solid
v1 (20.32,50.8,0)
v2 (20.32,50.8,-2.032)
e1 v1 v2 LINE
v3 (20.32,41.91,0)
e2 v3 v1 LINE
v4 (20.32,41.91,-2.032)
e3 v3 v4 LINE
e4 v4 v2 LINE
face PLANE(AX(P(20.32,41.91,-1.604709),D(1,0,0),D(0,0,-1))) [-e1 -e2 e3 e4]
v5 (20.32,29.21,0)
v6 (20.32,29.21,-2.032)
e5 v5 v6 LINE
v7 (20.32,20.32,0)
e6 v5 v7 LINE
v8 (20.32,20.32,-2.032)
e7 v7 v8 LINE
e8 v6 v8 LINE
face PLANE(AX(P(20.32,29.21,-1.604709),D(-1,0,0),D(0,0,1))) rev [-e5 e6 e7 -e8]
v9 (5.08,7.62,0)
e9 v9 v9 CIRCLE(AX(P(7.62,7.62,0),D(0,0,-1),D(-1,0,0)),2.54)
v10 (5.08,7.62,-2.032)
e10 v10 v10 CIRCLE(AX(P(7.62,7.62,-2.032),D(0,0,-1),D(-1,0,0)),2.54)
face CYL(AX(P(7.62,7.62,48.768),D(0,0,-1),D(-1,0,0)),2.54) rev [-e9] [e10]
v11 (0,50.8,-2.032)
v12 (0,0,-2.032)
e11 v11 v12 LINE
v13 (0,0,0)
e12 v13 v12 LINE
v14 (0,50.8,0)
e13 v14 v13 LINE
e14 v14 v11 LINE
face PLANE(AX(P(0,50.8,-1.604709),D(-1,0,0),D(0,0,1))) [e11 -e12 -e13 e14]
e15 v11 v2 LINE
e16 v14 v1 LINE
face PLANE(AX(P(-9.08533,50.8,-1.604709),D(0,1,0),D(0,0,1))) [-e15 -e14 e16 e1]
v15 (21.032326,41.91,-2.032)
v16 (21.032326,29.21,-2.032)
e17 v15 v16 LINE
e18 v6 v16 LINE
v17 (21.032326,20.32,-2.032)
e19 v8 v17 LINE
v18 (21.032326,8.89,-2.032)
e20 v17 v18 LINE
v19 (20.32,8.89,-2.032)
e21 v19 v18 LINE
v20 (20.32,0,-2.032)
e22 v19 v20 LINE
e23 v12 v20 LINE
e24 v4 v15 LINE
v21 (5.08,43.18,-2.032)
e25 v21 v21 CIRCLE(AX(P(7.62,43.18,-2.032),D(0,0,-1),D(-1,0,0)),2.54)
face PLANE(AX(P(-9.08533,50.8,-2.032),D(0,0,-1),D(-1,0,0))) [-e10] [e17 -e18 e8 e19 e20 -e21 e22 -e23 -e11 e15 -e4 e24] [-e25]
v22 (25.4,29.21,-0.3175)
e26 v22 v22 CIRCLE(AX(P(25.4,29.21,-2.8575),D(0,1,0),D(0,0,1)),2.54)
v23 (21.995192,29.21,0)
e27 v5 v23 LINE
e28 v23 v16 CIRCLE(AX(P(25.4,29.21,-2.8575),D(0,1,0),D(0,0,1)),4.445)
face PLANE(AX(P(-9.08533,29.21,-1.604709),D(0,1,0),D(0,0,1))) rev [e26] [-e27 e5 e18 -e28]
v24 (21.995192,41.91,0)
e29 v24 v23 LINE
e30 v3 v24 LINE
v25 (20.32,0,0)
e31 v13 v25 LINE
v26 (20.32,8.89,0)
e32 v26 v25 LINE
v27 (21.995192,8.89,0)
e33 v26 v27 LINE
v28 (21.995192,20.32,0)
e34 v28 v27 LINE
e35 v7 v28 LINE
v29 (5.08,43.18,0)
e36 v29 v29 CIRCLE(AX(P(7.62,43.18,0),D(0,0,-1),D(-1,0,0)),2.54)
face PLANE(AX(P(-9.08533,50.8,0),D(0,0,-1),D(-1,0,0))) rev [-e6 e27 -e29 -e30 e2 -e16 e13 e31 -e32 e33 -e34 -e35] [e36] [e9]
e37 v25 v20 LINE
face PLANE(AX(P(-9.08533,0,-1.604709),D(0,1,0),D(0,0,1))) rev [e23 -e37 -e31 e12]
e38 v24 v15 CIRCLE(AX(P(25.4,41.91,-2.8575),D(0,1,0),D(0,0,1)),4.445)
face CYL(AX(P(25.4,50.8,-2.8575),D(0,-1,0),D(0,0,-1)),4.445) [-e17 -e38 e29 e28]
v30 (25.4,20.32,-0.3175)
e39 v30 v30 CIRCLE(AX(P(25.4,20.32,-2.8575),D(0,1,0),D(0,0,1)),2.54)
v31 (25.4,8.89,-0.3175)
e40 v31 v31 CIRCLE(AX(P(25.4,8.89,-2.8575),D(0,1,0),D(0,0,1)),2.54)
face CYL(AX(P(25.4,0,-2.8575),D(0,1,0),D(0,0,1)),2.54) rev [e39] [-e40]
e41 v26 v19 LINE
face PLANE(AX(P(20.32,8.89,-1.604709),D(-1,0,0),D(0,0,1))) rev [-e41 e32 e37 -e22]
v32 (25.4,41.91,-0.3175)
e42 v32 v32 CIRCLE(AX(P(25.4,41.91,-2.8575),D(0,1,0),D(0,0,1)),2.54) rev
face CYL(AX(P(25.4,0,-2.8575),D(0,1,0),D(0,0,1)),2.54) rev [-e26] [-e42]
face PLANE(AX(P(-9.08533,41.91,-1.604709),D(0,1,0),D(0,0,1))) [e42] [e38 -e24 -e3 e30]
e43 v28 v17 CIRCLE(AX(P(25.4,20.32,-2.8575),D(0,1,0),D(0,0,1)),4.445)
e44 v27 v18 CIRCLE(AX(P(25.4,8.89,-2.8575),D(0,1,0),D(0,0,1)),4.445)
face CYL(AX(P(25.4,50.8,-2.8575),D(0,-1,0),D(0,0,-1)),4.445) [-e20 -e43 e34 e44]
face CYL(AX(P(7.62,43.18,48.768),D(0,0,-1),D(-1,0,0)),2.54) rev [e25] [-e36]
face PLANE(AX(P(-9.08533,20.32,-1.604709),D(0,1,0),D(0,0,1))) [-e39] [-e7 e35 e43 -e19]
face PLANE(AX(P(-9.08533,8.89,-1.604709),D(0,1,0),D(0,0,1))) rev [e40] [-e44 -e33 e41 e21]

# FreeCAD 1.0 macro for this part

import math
import FreeCAD as App
import Part
import Sketcher
Q = App.Units.Quantity

doc = App.newDocument("Part")
body = doc.addObject("PartDesign::Body", "Body")

sketch1 = doc.addObject("Sketcher::SketchObject", "Sketch")
body.addObject(sketch1)
sketch1.AttachmentSupport = (doc.XZ_Plane, [""])
sketch1.MapMode = "FlatFace"
sketch1.addGeometry([
    Part.LineSegment(App.Vector(0, -2, 0), App.Vector(0, 0, 0)),
    Part.LineSegment(App.Vector(0, 0, 0), App.Vector(22, 0, 0)),
    Part.ArcOfCircle(Part.Circle(App.Vector(25.4, -2.9, 0), App.Vector(0, 0, 1), 4.4), math.radians(169), math.radians(500)),
    Part.LineSegment(App.Vector(21, -2, 0), App.Vector(0, -2, 0)),
], False)
sketch1.addConstraint([
    Sketcher.Constraint("Coincident", 0, 2, 1, 1),
    Sketcher.Constraint("Coincident", 1, 2, 2, 2),
    Sketcher.Constraint("Coincident", 2, 1, 3, 1),
    Sketcher.Constraint("Coincident", 3, 2, 0, 1),
    Sketcher.Constraint("Vertical", 0),
    Sketcher.Constraint("Horizontal", 1),
    Sketcher.Constraint("Horizontal", 3),
    Sketcher.Constraint("Coincident", 0, 2, -1, 1),
    Sketcher.Constraint("DistanceX", -1, 1, 2, 3, Q("1 in")),
    Sketcher.Constraint("Radius", 2, Q("0.175 in")),
    Sketcher.Constraint("DistanceY", 0, 1, 0, 2, Q("0.08 in")),
    Sketcher.Constraint("DistanceY", 2, 3, -1, 1, Q("0.1125 in")),
])
pad1 = doc.addObject("PartDesign::Pad", "Pad")
body.addObject(pad1)
pad1.Profile = sketch1
pad1.Length = Q("2 in")
pad1.Reversed = True

sketch2 = doc.addObject("Sketcher::SketchObject", "Sketch001")
body.addObject(sketch2)
sketch2.AttachmentSupport = (doc.XY_Plane, [""])
sketch2.MapMode = "FlatFace"
sketch2.AttachmentOffset = App.Placement(App.Vector(0, 0, -0.08 * 25.4), App.Rotation())
sketch2.addGeometry([
    Part.Circle(App.Vector(7.6, 43.2, 0), App.Vector(0, 0, 1), 2.5),
    Part.Circle(App.Vector(7.6, 7.6, 0), App.Vector(0, 0, 1), 2.5),
], False)
sketch2.addConstraint([
    Sketcher.Constraint("Equal", 0, 1),
    Sketcher.Constraint("Vertical", 0, 3, 1, 3),
    Sketcher.Constraint("Diameter", 0, Q("0.2 in")),
    Sketcher.Constraint("DistanceX", -1, 1, 0, 3, Q("0.3 in")),
    Sketcher.Constraint("DistanceY", -1, 1, 0, 3, Q("1.7 in")),
    Sketcher.Constraint("DistanceY", -1, 1, 1, 3, Q("0.3 in")),
])
pocket1 = doc.addObject("PartDesign::Pocket", "Pocket")
body.addObject(pocket1)
pocket1.Profile = sketch2
pocket1.Length = Q("2 in")
pocket1.Reversed = True

sketch3 = doc.addObject("Sketcher::SketchObject", "Sketch002")
body.addObject(sketch3)
sketch3.AttachmentSupport = (doc.XZ_Plane, [""])
sketch3.MapMode = "FlatFace"
sketch3.addGeometry([
    Part.LineSegment(App.Vector(21, -2, 0), App.Vector(20.3, -2, 0)),
    Part.LineSegment(App.Vector(20.3, -2, 0), App.Vector(20.3, 0, 0)),
    Part.LineSegment(App.Vector(20.3, 0, 0), App.Vector(22, 0, 0)),
    Part.ArcOfCircle(Part.Circle(App.Vector(25.4, -2.9, 0), App.Vector(0, 0, 1), 4.4), math.radians(169), math.radians(500)),
], False)
sketch3.addConstraint([
    Sketcher.Constraint("Coincident", 0, 2, 1, 1),
    Sketcher.Constraint("Coincident", 1, 2, 2, 1),
    Sketcher.Constraint("Coincident", 2, 2, 3, 2),
    Sketcher.Constraint("Coincident", 3, 1, 0, 1),
    Sketcher.Constraint("Horizontal", 0),
    Sketcher.Constraint("Vertical", 1),
    Sketcher.Constraint("Horizontal", 2),
    Sketcher.Constraint("PointOnObject", 1, 2, -1),
    Sketcher.Constraint("DistanceX", -1, 1, 3, 3, Q("1 in")),
    Sketcher.Constraint("Radius", 3, Q("0.175 in")),
    Sketcher.Constraint("DistanceY", 1, 1, 1, 2, Q("0.08 in")),
    Sketcher.Constraint("DistanceX", -1, 1, 0, 2, Q("0.8 in")),
    Sketcher.Constraint("DistanceY", 3, 3, -1, 1, Q("0.1125 in")),
])
pocket2 = doc.addObject("PartDesign::Pocket", "Pocket001")
body.addObject(pocket2)
pocket2.Profile = sketch3
pocket2.Length = Q("0.35 in")

sketch4 = doc.addObject("Sketcher::SketchObject", "Sketch003")
body.addObject(sketch4)
sketch4.AttachmentSupport = (doc.XZ_Plane, [""])
sketch4.MapMode = "FlatFace"
sketch4.AttachmentOffset = App.Placement(App.Vector(0, 0, -0.8 * 25.4), App.Rotation())
sketch4.addGeometry([
    Part.LineSegment(App.Vector(21, -2, 0), App.Vector(20.3, -2, 0)),
    Part.LineSegment(App.Vector(20.3, -2, 0), App.Vector(20.3, 0, 0)),
    Part.LineSegment(App.Vector(20.3, 0, 0), App.Vector(22, 0, 0)),
    Part.ArcOfCircle(Part.Circle(App.Vector(25.4, -2.9, 0), App.Vector(0, 0, 1), 4.4), math.radians(169), math.radians(500)),
], False)
sketch4.addConstraint([
    Sketcher.Constraint("Coincident", 0, 2, 1, 1),
    Sketcher.Constraint("Coincident", 1, 2, 2, 1),
    Sketcher.Constraint("Coincident", 2, 2, 3, 2),
    Sketcher.Constraint("Coincident", 3, 1, 0, 1),
    Sketcher.Constraint("Horizontal", 0),
    Sketcher.Constraint("Vertical", 1),
    Sketcher.Constraint("Horizontal", 2),
    Sketcher.Constraint("PointOnObject", 1, 2, -1),
    Sketcher.Constraint("DistanceX", -1, 1, 3, 3, Q("1 in")),
    Sketcher.Constraint("Radius", 3, Q("0.175 in")),
    Sketcher.Constraint("DistanceY", 1, 1, 1, 2, Q("0.08 in")),
    Sketcher.Constraint("DistanceX", -1, 1, 0, 2, Q("0.8 in")),
    Sketcher.Constraint("DistanceY", 3, 3, -1, 1, Q("0.1125 in")),
])
pocket3 = doc.addObject("PartDesign::Pocket", "Pocket002")
body.addObject(pocket3)
pocket3.Profile = sketch4
pocket3.Length = Q("0.35 in")

sketch5 = doc.addObject("Sketcher::SketchObject", "Sketch004")
body.addObject(sketch5)
sketch5.AttachmentSupport = (doc.XZ_Plane, [""])
sketch5.MapMode = "FlatFace"
sketch5.AttachmentOffset = App.Placement(App.Vector(0, 0, -2 * 25.4), App.Rotation())
sketch5.addGeometry(Part.Circle(App.Vector(25.4, -2.9, 0), App.Vector(0, 0, 1), 2.5), False)
sketch5.addConstraint([
    Sketcher.Constraint("Diameter", 0, Q("0.2 in")),
    Sketcher.Constraint("DistanceX", -1, 1, 0, 3, Q("1 in")),
    Sketcher.Constraint("DistanceY", 0, 3, -1, 1, Q("0.1125 in")),
])
pocket4 = doc.addObject("PartDesign::Pocket", "Pocket003")
body.addObject(pocket4)
pocket4.Profile = sketch5
pocket4.Type = "ThroughAll"
pocket4.Reversed = True

sketch6 = doc.addObject("Sketcher::SketchObject", "Sketch005")
body.addObject(sketch6)
sketch6.AttachmentSupport = (doc.XZ_Plane, [""])
sketch6.MapMode = "FlatFace"
sketch6.AttachmentOffset = App.Placement(App.Vector(0, 0, -1.65 * 25.4), App.Rotation())
sketch6.addGeometry([
    Part.LineSegment(App.Vector(21, -2, 0), App.Vector(20.3, -2, 0)),
    Part.LineSegment(App.Vector(20.3, -2, 0), App.Vector(20.3, 0, 0)),
    Part.LineSegment(App.Vector(20.3, 0, 0), App.Vector(22, 0, 0)),
    Part.ArcOfCircle(Part.Circle(App.Vector(25.4, -2.9, 0), App.Vector(0, 0, 1), 4.4), math.radians(169), math.radians(500)),
], False)
sketch6.addConstraint([
    Sketcher.Constraint("Coincident", 0, 2, 1, 1),
    Sketcher.Constraint("Coincident", 1, 2, 2, 1),
    Sketcher.Constraint("Coincident", 2, 2, 3, 2),
    Sketcher.Constraint("Coincident", 3, 1, 0, 1),
    Sketcher.Constraint("Horizontal", 0),
    Sketcher.Constraint("Vertical", 1),
    Sketcher.Constraint("Horizontal", 2),
    Sketcher.Constraint("PointOnObject", 1, 2, -1),
    Sketcher.Constraint("DistanceX", -1, 1, 3, 3, Q("1 in")),
    Sketcher.Constraint("Radius", 3, Q("0.175 in")),
    Sketcher.Constraint("DistanceY", 1, 1, 1, 2, Q("0.08 in")),
    Sketcher.Constraint("DistanceX", -1, 1, 0, 2, Q("0.8 in")),
    Sketcher.Constraint("DistanceY", 3, 3, -1, 1, Q("0.1125 in")),
])
pocket5 = doc.addObject("PartDesign::Pocket", "Pocket004")
body.addObject(pocket5)
pocket5.Profile = sketch6
pocket5.Length = Q("0.35 in")

doc.recompute()
